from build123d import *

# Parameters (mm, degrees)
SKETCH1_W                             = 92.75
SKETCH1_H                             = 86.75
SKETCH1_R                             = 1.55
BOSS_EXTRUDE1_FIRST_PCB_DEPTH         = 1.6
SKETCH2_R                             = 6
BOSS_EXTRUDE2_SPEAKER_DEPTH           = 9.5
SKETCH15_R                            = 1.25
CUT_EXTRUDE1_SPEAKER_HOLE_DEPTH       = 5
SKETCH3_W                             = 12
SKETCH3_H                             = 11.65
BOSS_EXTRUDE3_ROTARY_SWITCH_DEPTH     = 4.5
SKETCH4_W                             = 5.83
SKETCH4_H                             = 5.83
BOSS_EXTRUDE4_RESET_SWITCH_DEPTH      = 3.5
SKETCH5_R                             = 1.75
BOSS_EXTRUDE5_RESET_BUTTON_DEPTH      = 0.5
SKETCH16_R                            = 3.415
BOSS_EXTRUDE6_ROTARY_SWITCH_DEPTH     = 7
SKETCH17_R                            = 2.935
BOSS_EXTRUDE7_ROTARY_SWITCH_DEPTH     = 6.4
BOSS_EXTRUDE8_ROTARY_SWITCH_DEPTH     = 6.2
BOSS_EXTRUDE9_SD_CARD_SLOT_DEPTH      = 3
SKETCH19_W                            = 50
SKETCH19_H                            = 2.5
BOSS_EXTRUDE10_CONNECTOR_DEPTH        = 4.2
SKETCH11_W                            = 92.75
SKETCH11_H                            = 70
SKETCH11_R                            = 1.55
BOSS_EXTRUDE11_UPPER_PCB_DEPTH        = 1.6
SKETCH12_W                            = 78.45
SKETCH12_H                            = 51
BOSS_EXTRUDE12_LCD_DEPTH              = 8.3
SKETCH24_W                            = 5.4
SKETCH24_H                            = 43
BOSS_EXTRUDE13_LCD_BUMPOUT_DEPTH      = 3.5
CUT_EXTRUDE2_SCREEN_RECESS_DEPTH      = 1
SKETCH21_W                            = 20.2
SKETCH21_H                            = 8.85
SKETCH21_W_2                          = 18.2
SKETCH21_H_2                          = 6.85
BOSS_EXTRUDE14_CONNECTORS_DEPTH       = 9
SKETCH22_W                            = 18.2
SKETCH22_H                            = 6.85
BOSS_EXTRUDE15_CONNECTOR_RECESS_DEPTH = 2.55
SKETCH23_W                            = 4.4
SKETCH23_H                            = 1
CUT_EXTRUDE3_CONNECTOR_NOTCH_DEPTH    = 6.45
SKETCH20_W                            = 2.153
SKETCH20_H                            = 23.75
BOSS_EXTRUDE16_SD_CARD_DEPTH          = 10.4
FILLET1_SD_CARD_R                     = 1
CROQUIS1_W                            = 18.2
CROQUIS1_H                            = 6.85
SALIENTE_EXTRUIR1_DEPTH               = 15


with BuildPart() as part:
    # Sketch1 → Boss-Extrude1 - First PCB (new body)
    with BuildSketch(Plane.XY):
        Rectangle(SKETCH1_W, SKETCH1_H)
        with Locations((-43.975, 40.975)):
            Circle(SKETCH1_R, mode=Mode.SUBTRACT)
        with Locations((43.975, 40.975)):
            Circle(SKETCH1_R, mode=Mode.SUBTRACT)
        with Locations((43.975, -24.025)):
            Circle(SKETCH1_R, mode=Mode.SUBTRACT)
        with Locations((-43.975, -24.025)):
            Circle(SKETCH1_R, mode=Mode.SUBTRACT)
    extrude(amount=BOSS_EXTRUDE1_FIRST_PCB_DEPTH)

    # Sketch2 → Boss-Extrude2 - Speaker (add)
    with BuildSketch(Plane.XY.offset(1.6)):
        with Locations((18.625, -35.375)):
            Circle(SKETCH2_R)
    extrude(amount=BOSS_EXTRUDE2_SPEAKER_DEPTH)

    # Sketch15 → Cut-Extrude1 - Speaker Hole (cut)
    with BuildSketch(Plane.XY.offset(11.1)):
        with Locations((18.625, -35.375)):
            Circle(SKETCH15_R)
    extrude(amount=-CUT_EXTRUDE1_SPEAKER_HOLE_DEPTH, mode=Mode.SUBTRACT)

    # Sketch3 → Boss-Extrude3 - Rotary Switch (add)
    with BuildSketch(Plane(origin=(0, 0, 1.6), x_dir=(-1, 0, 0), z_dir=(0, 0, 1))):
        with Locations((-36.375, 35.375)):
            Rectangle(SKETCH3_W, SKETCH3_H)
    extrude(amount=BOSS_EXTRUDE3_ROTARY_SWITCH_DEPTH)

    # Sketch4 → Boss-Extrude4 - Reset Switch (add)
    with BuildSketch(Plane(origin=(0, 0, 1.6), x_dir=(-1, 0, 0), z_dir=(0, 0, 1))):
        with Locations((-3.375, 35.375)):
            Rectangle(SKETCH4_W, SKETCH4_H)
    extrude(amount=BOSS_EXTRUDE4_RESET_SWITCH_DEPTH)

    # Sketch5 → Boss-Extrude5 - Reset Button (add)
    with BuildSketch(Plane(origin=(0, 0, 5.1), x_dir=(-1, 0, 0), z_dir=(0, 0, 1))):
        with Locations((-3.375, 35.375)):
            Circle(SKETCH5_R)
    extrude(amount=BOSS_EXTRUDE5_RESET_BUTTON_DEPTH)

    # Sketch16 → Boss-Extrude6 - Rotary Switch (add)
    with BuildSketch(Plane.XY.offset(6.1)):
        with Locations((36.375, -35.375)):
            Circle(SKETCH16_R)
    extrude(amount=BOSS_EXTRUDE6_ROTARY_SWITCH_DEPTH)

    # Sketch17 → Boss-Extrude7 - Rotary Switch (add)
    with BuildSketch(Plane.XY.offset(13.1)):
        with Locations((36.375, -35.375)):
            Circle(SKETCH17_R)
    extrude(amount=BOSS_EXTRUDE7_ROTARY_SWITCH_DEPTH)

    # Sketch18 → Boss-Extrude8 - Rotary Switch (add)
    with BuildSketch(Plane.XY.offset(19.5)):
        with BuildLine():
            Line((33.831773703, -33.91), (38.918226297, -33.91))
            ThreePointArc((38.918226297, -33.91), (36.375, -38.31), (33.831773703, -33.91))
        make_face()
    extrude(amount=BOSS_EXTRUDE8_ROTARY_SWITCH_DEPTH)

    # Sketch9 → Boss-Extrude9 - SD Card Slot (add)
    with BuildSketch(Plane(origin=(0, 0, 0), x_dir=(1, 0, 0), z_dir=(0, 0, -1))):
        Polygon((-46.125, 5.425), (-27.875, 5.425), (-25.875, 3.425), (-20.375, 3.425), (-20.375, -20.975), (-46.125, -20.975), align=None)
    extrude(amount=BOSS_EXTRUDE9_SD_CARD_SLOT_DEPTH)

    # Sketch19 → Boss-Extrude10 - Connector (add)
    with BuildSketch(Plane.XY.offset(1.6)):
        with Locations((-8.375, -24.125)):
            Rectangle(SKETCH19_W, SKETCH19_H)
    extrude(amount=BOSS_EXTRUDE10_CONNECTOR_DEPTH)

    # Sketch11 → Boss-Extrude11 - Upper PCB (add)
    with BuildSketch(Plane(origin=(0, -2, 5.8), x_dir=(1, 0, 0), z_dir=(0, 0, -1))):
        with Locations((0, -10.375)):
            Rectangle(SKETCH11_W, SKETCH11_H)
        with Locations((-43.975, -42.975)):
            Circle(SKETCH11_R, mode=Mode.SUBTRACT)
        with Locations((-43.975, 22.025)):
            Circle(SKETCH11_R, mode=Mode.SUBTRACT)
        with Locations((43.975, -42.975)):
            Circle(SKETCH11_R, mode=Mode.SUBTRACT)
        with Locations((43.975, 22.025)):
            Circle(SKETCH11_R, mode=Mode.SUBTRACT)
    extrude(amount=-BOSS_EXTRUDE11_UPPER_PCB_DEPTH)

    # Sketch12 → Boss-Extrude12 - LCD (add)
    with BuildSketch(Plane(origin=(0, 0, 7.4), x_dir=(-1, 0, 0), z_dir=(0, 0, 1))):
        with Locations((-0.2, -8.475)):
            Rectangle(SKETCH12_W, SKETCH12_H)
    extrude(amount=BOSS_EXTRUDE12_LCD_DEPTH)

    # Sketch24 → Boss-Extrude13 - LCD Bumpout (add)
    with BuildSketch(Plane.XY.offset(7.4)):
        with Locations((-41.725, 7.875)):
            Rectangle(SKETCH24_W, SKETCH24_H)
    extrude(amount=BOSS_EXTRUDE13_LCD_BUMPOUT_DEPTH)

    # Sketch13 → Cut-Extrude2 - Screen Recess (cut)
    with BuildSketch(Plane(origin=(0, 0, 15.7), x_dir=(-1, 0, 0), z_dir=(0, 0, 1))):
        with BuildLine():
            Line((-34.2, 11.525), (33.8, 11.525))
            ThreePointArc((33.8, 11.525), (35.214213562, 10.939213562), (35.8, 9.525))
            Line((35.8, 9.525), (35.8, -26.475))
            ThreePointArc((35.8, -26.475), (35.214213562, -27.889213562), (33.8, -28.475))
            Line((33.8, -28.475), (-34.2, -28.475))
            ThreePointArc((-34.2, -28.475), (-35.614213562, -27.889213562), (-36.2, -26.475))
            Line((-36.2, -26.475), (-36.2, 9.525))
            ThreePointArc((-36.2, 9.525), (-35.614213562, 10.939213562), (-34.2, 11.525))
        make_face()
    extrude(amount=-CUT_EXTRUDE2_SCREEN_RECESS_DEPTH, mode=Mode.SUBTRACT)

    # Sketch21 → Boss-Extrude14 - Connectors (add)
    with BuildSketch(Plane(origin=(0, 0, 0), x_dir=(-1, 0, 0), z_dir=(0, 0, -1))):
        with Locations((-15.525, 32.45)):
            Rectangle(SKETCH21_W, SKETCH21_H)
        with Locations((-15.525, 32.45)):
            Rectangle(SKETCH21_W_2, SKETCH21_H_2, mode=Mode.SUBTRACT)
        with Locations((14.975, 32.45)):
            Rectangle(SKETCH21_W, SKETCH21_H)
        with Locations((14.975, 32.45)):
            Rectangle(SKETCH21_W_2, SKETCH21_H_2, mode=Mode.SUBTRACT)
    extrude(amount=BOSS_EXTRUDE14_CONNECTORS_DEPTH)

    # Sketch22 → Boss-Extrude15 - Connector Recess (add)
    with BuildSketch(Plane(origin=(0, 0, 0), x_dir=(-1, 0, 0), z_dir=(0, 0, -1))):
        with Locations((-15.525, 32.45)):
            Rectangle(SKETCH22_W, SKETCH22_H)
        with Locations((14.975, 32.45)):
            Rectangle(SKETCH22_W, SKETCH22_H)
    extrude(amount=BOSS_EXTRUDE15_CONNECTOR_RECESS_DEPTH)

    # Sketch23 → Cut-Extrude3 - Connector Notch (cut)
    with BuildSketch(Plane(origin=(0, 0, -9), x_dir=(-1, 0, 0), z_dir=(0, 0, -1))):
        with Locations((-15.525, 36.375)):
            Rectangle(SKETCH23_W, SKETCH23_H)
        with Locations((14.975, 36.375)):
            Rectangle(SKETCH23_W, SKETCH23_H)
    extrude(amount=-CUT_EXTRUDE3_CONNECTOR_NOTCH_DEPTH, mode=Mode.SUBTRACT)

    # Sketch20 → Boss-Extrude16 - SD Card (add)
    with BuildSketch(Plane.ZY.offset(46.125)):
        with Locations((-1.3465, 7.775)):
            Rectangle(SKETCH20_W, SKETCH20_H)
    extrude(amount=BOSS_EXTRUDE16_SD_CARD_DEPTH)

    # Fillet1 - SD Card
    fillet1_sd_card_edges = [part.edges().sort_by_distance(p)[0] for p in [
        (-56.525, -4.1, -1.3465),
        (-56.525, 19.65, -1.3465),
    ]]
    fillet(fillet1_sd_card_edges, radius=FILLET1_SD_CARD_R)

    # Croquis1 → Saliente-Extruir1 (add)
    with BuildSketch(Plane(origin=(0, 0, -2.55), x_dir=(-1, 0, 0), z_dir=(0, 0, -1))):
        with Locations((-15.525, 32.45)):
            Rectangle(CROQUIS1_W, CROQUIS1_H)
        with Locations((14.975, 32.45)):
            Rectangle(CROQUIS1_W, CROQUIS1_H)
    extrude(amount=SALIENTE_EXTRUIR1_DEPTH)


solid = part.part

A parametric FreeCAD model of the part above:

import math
import FreeCAD as App
import Part
import Sketcher
from FreeCAD import Vector
Q = App.Units.Quantity


def edges_at(feature, points):
    """Names of the edges that pass closest to the given points."""
    edges = feature.Shape.Edges
    near = lambda p: min(range(len(edges)), key=lambda i: edges[i].distToShape(Part.Vertex(*p))[0])
    return sorted({f"Edge{near(p) + 1}" for p in points})


def add_polygon(sketch, points):
    """Adds a closed chain of lines whose ends are joined by coincident constraints."""
    first, n = sketch.GeometryCount, len(points)
    for a, b in zip(points, points[1:] + points[:1]):
        sketch.addGeometry(Part.LineSegment(App.Vector(*a, 0), App.Vector(*b, 0)), False)
    for i in range(n):
        sketch.addConstraint(Sketcher.Constraint("Coincident", first + i, 2, first + (i + 1) % n, 1))

doc = App.newDocument("Part")
body = doc.addObject("PartDesign::Body", "Body")

# Sketch on XY plane
sketch1 = body.newObject("Sketcher::SketchObject", "Sketch")
sketch1.AttachmentSupport = (doc.getObject("XY_Plane"), [""])
sketch1.MapMode = "FlatFace"
add_polygon(sketch1, [(-46.4, 43.4), (-46.4, -43.4), (46.4, -43.4), (46.4, 43.4)])  # lines 0-3
sketch1.addGeometry(Part.Circle(Vector(-44, -24, 0), Vector(0, 0, 1), 1.6), False)  # 4
sketch1.addGeometry(Part.Circle(Vector(44, -24, 0), Vector(0, 0, 1), 1.6), False)  # 5
sketch1.addGeometry(Part.Circle(Vector(-44, 41, 0), Vector(0, 0, 1), 1.6), False)  # 6
sketch1.addGeometry(Part.Circle(Vector(44, 41, 0), Vector(0, 0, 1), 1.6), False)  # 7
sketch1.addConstraint(Sketcher.Constraint("Vertical", 0))
sketch1.addConstraint(Sketcher.Constraint("Horizontal", 1))
sketch1.addConstraint(Sketcher.Constraint("Vertical", 2))
sketch1.addConstraint(Sketcher.Constraint("Horizontal", 3))
sketch1.addConstraint(Sketcher.Constraint("Equal", 4, 5))
sketch1.addConstraint(Sketcher.Constraint("Equal", 5, 6))
sketch1.addConstraint(Sketcher.Constraint("Equal", 6, 7))
sketch1.addConstraint(Sketcher.Constraint("Symmetric", 0, 2, 2, 2, -1, 1))
sketch1.addConstraint(Sketcher.Constraint("Symmetric", 4, 3, 5, 3, -2))
sketch1.addConstraint(Sketcher.Constraint("Symmetric", 6, 3, 7, 3, -2))
sketch1.addConstraint(Sketcher.Constraint("Vertical", 4, 3, 6, 3))
sketch1.addConstraint(Sketcher.Constraint("Diameter", 4, Q("3.1 mm")))
sketch1.addConstraint(Sketcher.Constraint("DistanceY", 4, 3, 6, 3, Q("65 mm")))
sketch1.addConstraint(Sketcher.Constraint("DistanceX", 1, 1, 1, 2, Q("92.75 mm")))
sketch1.addConstraint(Sketcher.Constraint("DistanceY", 0, 2, 0, 1, Q("86.75 mm")))
sketch1.addConstraint(Sketcher.Constraint("DistanceX", 0, 2, 4, 3, Q("2.4 mm")))
sketch1.addConstraint(Sketcher.Constraint("DistanceY", 7, 3, 2, 2, Q("2.4 mm")))
pad1 = body.newObject("PartDesign::Pad", "Pad")
pad1.Profile = sketch1
pad1.Length = 1.6

# Sketch on XY plane
sketch2 = body.newObject("Sketcher::SketchObject", "Sketch001")
sketch2.AttachmentSupport = (doc.getObject("XY_Plane"), [""])
sketch2.MapMode = "FlatFace"
sketch2.AttachmentOffset = App.Placement(Vector(0, 0, 1.6), App.Rotation())
sketch2.addGeometry(Part.Circle(Vector(19, -35, 0), Vector(0, 0, 1), 6), False)
sketch2.addConstraint(Sketcher.Constraint("Diameter", 0, Q("12 mm")))
sketch2.addConstraint(Sketcher.Constraint("DistanceX", -1, 1, 0, 3, Q("18.625 mm")))
sketch2.addConstraint(Sketcher.Constraint("DistanceY", 0, 3, -1, 1, Q("35.375 mm")))
pad2 = body.newObject("PartDesign::Pad", "Pad001")
pad2.Profile = sketch2
pad2.Length = 9.5

# Sketch on XY plane
sketch3 = body.newObject("Sketcher::SketchObject", "Sketch002")
sketch3.AttachmentSupport = (doc.getObject("XY_Plane"), [""])
sketch3.MapMode = "FlatFace"
sketch3.AttachmentOffset = App.Placement(Vector(0, 0, 11.1), App.Rotation())
sketch3.addGeometry(Part.Circle(Vector(18.6, -35.4, 0), Vector(0, 0, 1), 1.2), False)
sketch3.addConstraint(Sketcher.Constraint("Diameter", 0, Q("2.5 mm")))
sketch3.addConstraint(Sketcher.Constraint("DistanceX", -1, 1, 0, 3, Q("18.625 mm")))
sketch3.addConstraint(Sketcher.Constraint("DistanceY", 0, 3, -1, 1, Q("35.375 mm")))
pocket1 = body.newObject("PartDesign::Pocket", "Pocket")
pocket1.Profile = sketch3
pocket1.Length = 5

# Sketch on XY plane
sketch4 = body.newObject("Sketcher::SketchObject", "Sketch003")
sketch4.AttachmentSupport = (doc.getObject("XY_Plane"), [""])
sketch4.MapMode = "FlatFace"
sketch4.AttachmentOffset = App.Placement(Vector(0, 0, 1.6), App.Rotation())
add_polygon(sketch4, [(42, -41), (42, -30), (30, -30), (30, -41)])  # lines 0-3
sketch4.addConstraint(Sketcher.Constraint("Vertical", 0))
sketch4.addConstraint(Sketcher.Constraint("Horizontal", 1))
sketch4.addConstraint(Sketcher.Constraint("Vertical", 2))
sketch4.addConstraint(Sketcher.Constraint("Horizontal", 3))
sketch4.addConstraint(Sketcher.Constraint("DistanceX", 1, 2, 1, 1, Q("12 mm")))
sketch4.addConstraint(Sketcher.Constraint("DistanceY", 0, 1, 0, 2, Q("11.65 mm")))
sketch4.addConstraint(Sketcher.Constraint("DistanceY", 2, 2, -1, 1, Q("41.2 mm")))
sketch4.addConstraint(Sketcher.Constraint("DistanceX", -1, 1, 0, 2, Q("42.375 mm")))
pad3 = body.newObject("PartDesign::Pad", "Pad002")
pad3.Profile = sketch4
pad3.Length = 4.5

# Sketch on XY plane
sketch5 = body.newObject("Sketcher::SketchObject", "Sketch004")
sketch5.AttachmentSupport = (doc.getObject("XY_Plane"), [""])
sketch5.MapMode = "FlatFace"
sketch5.AttachmentOffset = App.Placement(Vector(0, 0, 1.6), App.Rotation())
add_polygon(sketch5, [(6, -38), (6, -32), (0, -32), (0, -38)])  # lines 0-3
sketch5.addConstraint(Sketcher.Constraint("Vertical", 0))
sketch5.addConstraint(Sketcher.Constraint("Horizontal", 1))
sketch5.addConstraint(Sketcher.Constraint("Vertical", 2))
sketch5.addConstraint(Sketcher.Constraint("Horizontal", 3))
sketch5.addConstraint(Sketcher.Constraint("Equal", 3, 0))
sketch5.addConstraint(Sketcher.Constraint("DistanceX", 1, 2, 1, 1, Q("5.83 mm")))
sketch5.addConstraint(Sketcher.Constraint("DistanceX", -1, 1, 0, 2, Q("6.29 mm")))
sketch5.addConstraint(Sketcher.Constraint("DistanceY", 0, 2, -1, 1, Q("32.46 mm")))
pad4 = body.newObject("PartDesign::Pad", "Pad003")
pad4.Profile = sketch5
pad4.Length = 3.5

# Sketch on XY plane
sketch6 = body.newObject("Sketcher::SketchObject", "Sketch005")
sketch6.AttachmentSupport = (doc.getObject("XY_Plane"), [""])
sketch6.MapMode = "FlatFace"
sketch6.AttachmentOffset = App.Placement(Vector(0, 0, 5.1), App.Rotation())
sketch6.addGeometry(Part.Circle(Vector(3.4, -35.4, 0), Vector(0, 0, 1), 1.8), False)
sketch6.addConstraint(Sketcher.Constraint("Diameter", 0, Q("3.5 mm")))
sketch6.addConstraint(Sketcher.Constraint("DistanceX", -1, 1, 0, 3, Q("3.375 mm")))
sketch6.addConstraint(Sketcher.Constraint("DistanceY", 0, 3, -1, 1, Q("35.375 mm")))
pad5 = body.newObject("PartDesign::Pad", "Pad004")
pad5.Profile = sketch6
pad5.Length = 0.5

# Sketch on XY plane
sketch7 = body.newObject("Sketcher::SketchObject", "Sketch006")
sketch7.AttachmentSupport = (doc.getObject("XY_Plane"), [""])
sketch7.MapMode = "FlatFace"
sketch7.AttachmentOffset = App.Placement(Vector(0, 0, 6.1), App.Rotation())
sketch7.addGeometry(Part.Circle(Vector(36.4, -35.4, 0), Vector(0, 0, 1), 3.4), False)
sketch7.addConstraint(Sketcher.Constraint("Diameter", 0, Q("6.83 mm")))
sketch7.addConstraint(Sketcher.Constraint("DistanceX", -1, 1, 0, 3, Q("36.375 mm")))
sketch7.addConstraint(Sketcher.Constraint("DistanceY", 0, 3, -1, 1, Q("35.375 mm")))
pad6 = body.newObject("PartDesign::Pad", "Pad005")
pad6.Profile = sketch7
pad6.Length = 7

# Sketch on XY plane
sketch8 = body.newObject("Sketcher::SketchObject", "Sketch007")
sketch8.AttachmentSupport = (doc.getObject("XY_Plane"), [""])
sketch8.MapMode = "FlatFace"
sketch8.AttachmentOffset = App.Placement(Vector(0, 0, 13.1), App.Rotation())
sketch8.addGeometry(Part.Circle(Vector(36.4, -35.4, 0), Vector(0, 0, 1), 2.9), False)
sketch8.addConstraint(Sketcher.Constraint("Diameter", 0, Q("5.87 mm")))
sketch8.addConstraint(Sketcher.Constraint("DistanceX", -1, 1, 0, 3, Q("36.375 mm")))
sketch8.addConstraint(Sketcher.Constraint("DistanceY", 0, 3, -1, 1, Q("35.375 mm")))
pad7 = body.newObject("PartDesign::Pad", "Pad006")
pad7.Profile = sketch8
pad7.Length = 6.4

# Sketch on XY plane
sketch9 = body.newObject("Sketcher::SketchObject", "Sketch008")
sketch9.AttachmentSupport = (doc.getObject("XY_Plane"), [""])
sketch9.MapMode = "FlatFace"
sketch9.AttachmentOffset = App.Placement(Vector(0, 0, 19.5), App.Rotation())
sketch9.addGeometry(Part.LineSegment(Vector(38.9, -33.9, 0), Vector(33.8, -33.9, 0)), False)
sketch9.addGeometry(Part.ArcOfCircle(Part.Circle(Vector(36.4, -35.4, 0), Vector(0, 0, 1), 2.9), math.radians(150), math.radians(390)), False)
sketch9.addConstraint(Sketcher.Constraint("Coincident", 0, 1, 1, 2))
sketch9.addConstraint(Sketcher.Constraint("Coincident", 1, 1, 0, 2))
sketch9.addConstraint(Sketcher.Constraint("Horizontal", 0))
sketch9.addConstraint(Sketcher.Constraint("Radius", 1, Q("2.935 mm")))
sketch9.addConstraint(Sketcher.Constraint("DistanceY", 0, 1, -1, 1, Q("33.91 mm")))
sketch9.addConstraint(Sketcher.Constraint("DistanceX", -1, 1, 1, 3, Q("36.375 mm")))
sketch9.addConstraint(Sketcher.Constraint("DistanceY", 1, 3, -1, 1, Q("35.375 mm")))
pad8 = body.newObject("PartDesign::Pad", "Pad007")
pad8.Profile = sketch9
pad8.Length = 6.2

# Sketch on XY plane
sketch10 = body.newObject("Sketcher::SketchObject", "Sketch009")
sketch10.AttachmentSupport = (doc.getObject("XY_Plane"), [""])
sketch10.MapMode = "FlatFace"
add_polygon(sketch10, [(-27.9, -5.4), (-46.1, -5.4), (-46.1, 21), (-20.4, 21), (-20.4, -3.4), (-25.9, -3.4)])  # lines 0-5
sketch10.addConstraint(Sketcher.Constraint("Horizontal", 0))
sketch10.addConstraint(Sketcher.Constraint("Vertical", 1))
sketch10.addConstraint(Sketcher.Constraint("Horizontal", 2))
sketch10.addConstraint(Sketcher.Constraint("Vertical", 3))
sketch10.addConstraint(Sketcher.Constraint("Horizontal", 4))
sketch10.addConstraint(Sketcher.Constraint("Angle", 5, Q("-135 deg")))
sketch10.addConstraint(Sketcher.Constraint("DistanceX", 4, 2, 4, 1, Q("5.5 mm")))
sketch10.addConstraint(Sketcher.Constraint("DistanceY", 1, 1, 1, 2, Q("26.4 mm")))
sketch10.addConstraint(Sketcher.Constraint("DistanceY", 3, 2, 3, 1, Q("24.4 mm")))
sketch10.addConstraint(Sketcher.Constraint("DistanceX", 0, 2, 0, 1, Q("18.25 mm")))
sketch10.addConstraint(Sketcher.Constraint("DistanceX", 0, 2, -1, 1, Q("46.125 mm")))
sketch10.addConstraint(Sketcher.Constraint("DistanceY", 0, 2, -1, 1, Q("5.425 mm")))
pad9 = body.newObject("PartDesign::Pad", "Pad008")
pad9.Profile = sketch10
pad9.Length = 3
pad9.Reversed = True

# Sketch on XY plane
sketch11 = body.newObject("Sketcher::SketchObject", "Sketch010")
sketch11.AttachmentSupport = (doc.getObject("XY_Plane"), [""])
sketch11.MapMode = "FlatFace"
sketch11.AttachmentOffset = App.Placement(Vector(0, 0, 1.6), App.Rotation())
add_polygon(sketch11, [(-33.4, -22.9), (-33.4, -25.4), (16.6, -25.4), (16.6, -22.9)])  # lines 0-3
sketch11.addConstraint(Sketcher.Constraint("Vertical", 0))
sketch11.addConstraint(Sketcher.Constraint("Horizontal", 1))
sketch11.addConstraint(Sketcher.Constraint("Vertical", 2))
sketch11.addConstraint(Sketcher.Constraint("Horizontal", 3))
sketch11.addConstraint(Sketcher.Constraint("DistanceX", 1, 1, 1, 2, Q("50 mm")))
sketch11.addConstraint(Sketcher.Constraint("DistanceY", 0, 2, 0, 1, Q("2.5 mm")))
sketch11.addConstraint(Sketcher.Constraint("DistanceX", 0, 2, -1, 1, Q("33.375 mm")))
sketch11.addConstraint(Sketcher.Constraint("DistanceY", 0, 2, -1, 1, Q("25.375 mm")))
pad10 = body.newObject("PartDesign::Pad", "Pad009")
pad10.Profile = sketch11
pad10.Length = 4.2

# Sketch on XY plane
sketch12 = body.newObject("Sketcher::SketchObject", "Sketch011")
sketch12.AttachmentSupport = (doc.getObject("XY_Plane"), [""])
sketch12.MapMode = "FlatFace"
sketch12.AttachmentOffset = App.Placement(Vector(0, 0, 5.8), App.Rotation())
add_polygon(sketch12, [(-46.4, -26.6), (-46.4, 43.4), (46.4, 43.4), (46.4, -26.6)])  # lines 0-3
sketch12.addGeometry(Part.Circle(Vector(-44, 41, 0), Vector(0, 0, 1), 1.6), False)  # 4
sketch12.addGeometry(Part.Circle(Vector(44, 41, 0), Vector(0, 0, 1), 1.6), False)  # 5
sketch12.addGeometry(Part.Circle(Vector(-44, -24, 0), Vector(0, 0, 1), 1.6), False)  # 6
sketch12.addGeometry(Part.Circle(Vector(44, -24, 0), Vector(0, 0, 1), 1.6), False)  # 7
sketch12.addConstraint(Sketcher.Constraint("Vertical", 0))
sketch12.addConstraint(Sketcher.Constraint("Horizontal", 1))
sketch12.addConstraint(Sketcher.Constraint("Vertical", 2))
sketch12.addConstraint(Sketcher.Constraint("Horizontal", 3))
sketch12.addConstraint(Sketcher.Constraint("Equal", 4, 5))
sketch12.addConstraint(Sketcher.Constraint("Equal", 5, 6))
sketch12.addConstraint(Sketcher.Constraint("Equal", 6, 7))
sketch12.addConstraint(Sketcher.Constraint("Symmetric", 4, 3, 5, 3, -2))
sketch12.addConstraint(Sketcher.Constraint("Symmetric", 6, 3, 7, 3, -2))
sketch12.addConstraint(Sketcher.Constraint("Vertical", 4, 3, 6, 3))
sketch12.addConstraint(Sketcher.Constraint("Diameter", 4, Q("3.1 mm")))
sketch12.addConstraint(Sketcher.Constraint("DistanceY", 0, 1, 0, 2, Q("70 mm")))
sketch12.addConstraint(Sketcher.Constraint("DistanceY", 6, 3, 4, 3, Q("65 mm")))
sketch12.addConstraint(Sketcher.Constraint("DistanceX", 1, 1, 1, 2, Q("92.75 mm")))
sketch12.addConstraint(Sketcher.Constraint("DistanceX", 0, 2, 4, 3, Q("2.4 mm")))
sketch12.addConstraint(Sketcher.Constraint("DistanceY", 4, 3, 0, 2, Q("2.4 mm")))
sketch12.addConstraint(Sketcher.Constraint("DistanceX", 5, 3, 1, 2, Q("2.4 mm")))
sketch12.addConstraint(Sketcher.Constraint("DistanceY", -1, 1, 4, 3, Q("40.975 mm")))
pad11 = body.newObject("PartDesign::Pad", "Pad010")
pad11.Profile = sketch12
pad11.Length = 1.6

# Sketch on XY plane
sketch13 = body.newObject("Sketcher::SketchObject", "Sketch012")
sketch13.AttachmentSupport = (doc.getObject("XY_Plane"), [""])
sketch13.MapMode = "FlatFace"
sketch13.AttachmentOffset = App.Placement(Vector(0, 0, 7.4), App.Rotation())
add_polygon(sketch13, [(39, -17), (39, 34), (-39, 34), (-39, -17)])  # lines 0-3
sketch13.addConstraint(Sketcher.Constraint("Vertical", 0))
sketch13.addConstraint(Sketcher.Constraint("Horizontal", 1))
sketch13.addConstraint(Sketcher.Constraint("Vertical", 2))
sketch13.addConstraint(Sketcher.Constraint("Horizontal", 3))
sketch13.addConstraint(Sketcher.Constraint("DistanceY", 0, 1, 0, 2, Q("51 mm")))
sketch13.addConstraint(Sketcher.Constraint("DistanceX", 1, 2, 1, 1, Q("78.45 mm")))
sketch13.addConstraint(Sketcher.Constraint("DistanceX", -1, 1, 0, 2, Q("39.425 mm")))
sketch13.addConstraint(Sketcher.Constraint("DistanceY", -1, 1, 0, 2, Q("33.975 mm")))
pad12 = body.newObject("PartDesign::Pad", "Pad011")
pad12.Profile = sketch13
pad12.Length = 8.3

# Sketch on XY plane
sketch14 = body.newObject("Sketcher::SketchObject", "Sketch013")
sketch14.AttachmentSupport = (doc.getObject("XY_Plane"), [""])
sketch14.MapMode = "FlatFace"
sketch14.AttachmentOffset = App.Placement(Vector(0, 0, 7.4), App.Rotation())
add_polygon(sketch14, [(-44, 29), (-44, -14), (-39, -14), (-39, 29)])  # lines 0-3
sketch14.addConstraint(Sketcher.Constraint("Vertical", 0))
sketch14.addConstraint(Sketcher.Constraint("Horizontal", 1))
sketch14.addConstraint(Sketcher.Constraint("Vertical", 2))
sketch14.addConstraint(Sketcher.Constraint("Horizontal", 3))
sketch14.addConstraint(Sketcher.Constraint("DistanceY", 0, 2, 0, 1, Q("43 mm")))
sketch14.addConstraint(Sketcher.Constraint("DistanceX", 1, 1, 1, 2, Q("5.4 mm")))
sketch14.addConstraint(Sketcher.Constraint("DistanceX", 0, 2, -1, 1, Q("44.425 mm")))
sketch14.addConstraint(Sketcher.Constraint("DistanceY", 0, 2, -1, 1, Q("13.625 mm")))
pad13 = body.newObject("PartDesign::Pad", "Pad012")
pad13.Profile = sketch14
pad13.Length = 3.5

# Sketch on XY plane
sketch15 = body.newObject("Sketcher::SketchObject", "Sketch014")
sketch15.AttachmentSupport = (doc.getObject("XY_Plane"), [""])
sketch15.MapMode = "FlatFace"
sketch15.AttachmentOffset = App.Placement(Vector(0, 0, 15.7), App.Rotation())
sketch15.addGeometry(Part.LineSegment(Vector(-33.8, -11.5, 0), Vector(34.2, -11.5, 0)), False)
sketch15.addGeometry(Part.ArcOfCircle(Part.Circle(Vector(34.2, -9.5, 0), Vector(0, 0, 1), 2), math.radians(-90), math.radians(0)), False)
sketch15.addGeometry(Part.LineSegment(Vector(36.2, -9.5, 0), Vector(36.2, 26.5, 0)), False)
sketch15.addGeometry(Part.ArcOfCircle(Part.Circle(Vector(34.2, 26.5, 0), Vector(0, 0, 1), 2), math.radians(0), math.radians(90)), False)
sketch15.addGeometry(Part.LineSegment(Vector(34.2, 28.5, 0), Vector(-33.8, 28.5, 0)), False)
sketch15.addGeometry(Part.ArcOfCircle(Part.Circle(Vector(-33.8, 26.5, 0), Vector(0, 0, 1), 2), math.radians(90), math.radians(180)), False)
sketch15.addGeometry(Part.LineSegment(Vector(-35.8, 26.5, 0), Vector(-35.8, -9.5, 0)), False)
sketch15.addGeometry(Part.ArcOfCircle(Part.Circle(Vector(-33.8, -9.5, 0), Vector(0, 0, 1), 2), math.radians(-180), math.radians(-90)), False)
sketch15.addConstraint(Sketcher.Constraint("Tangent", 0, 2, 1, 1))
sketch15.addConstraint(Sketcher.Constraint("Tangent", 1, 2, 2, 1))
sketch15.addConstraint(Sketcher.Constraint("Tangent", 2, 2, 3, 1))
sketch15.addConstraint(Sketcher.Constraint("Tangent", 3, 2, 4, 1))
sketch15.addConstraint(Sketcher.Constraint("Tangent", 4, 2, 5, 1))
sketch15.addConstraint(Sketcher.Constraint("Tangent", 5, 2, 6, 1))
sketch15.addConstraint(Sketcher.Constraint("Tangent", 6, 2, 7, 1))
sketch15.addConstraint(Sketcher.Constraint("Tangent", 7, 2, 0, 1))
sketch15.addConstraint(Sketcher.Constraint("Horizontal", 0))
sketch15.addConstraint(Sketcher.Constraint("Vertical", 2))
sketch15.addConstraint(Sketcher.Constraint("Horizontal", 4))
sketch15.addConstraint(Sketcher.Constraint("Vertical", 6))
sketch15.addConstraint(Sketcher.Constraint("Equal", 1, 3))
sketch15.addConstraint(Sketcher.Constraint("Equal", 3, 5))
sketch15.addConstraint(Sketcher.Constraint("Equal", 5, 7))
sketch15.addConstraint(Sketcher.Constraint("Radius", 1, Q("2 mm")))
sketch15.addConstraint(Sketcher.Constraint("DistanceX", 0, 1, 0, 2, Q("68 mm")))
sketch15.addConstraint(Sketcher.Constraint("DistanceY", 2, 1, 2, 2, Q("36 mm")))
sketch15.addConstraint(Sketcher.Constraint("DistanceX", -1, 1, 1, 3, Q("34.2 mm")))
sketch15.addConstraint(Sketcher.Constraint("DistanceY", 1, 3, -1, 1, Q("9.525 mm")))
pocket2 = body.newObject("PartDesign::Pocket", "Pocket001")
pocket2.Profile = sketch15
pocket2.Length = 1

# Sketch on XY plane
sketch16 = body.newObject("Sketcher::SketchObject", "Sketch015")
sketch16.AttachmentSupport = (doc.getObject("XY_Plane"), [""])
sketch16.MapMode = "FlatFace"
add_polygon(sketch16, [(26, 37), (26, 28), (5, 28), (5, 37)])  # lines 0-3
add_polygon(sketch16, [(6, 29), (25, 29), (25, 36), (6, 36)])  # lines 4-7
add_polygon(sketch16, [(-5, 37), (-5, 28), (-25, 28), (-25, 37)])  # lines 8-11
add_polygon(sketch16, [(-24, 29), (-6, 29), (-6, 36), (-24, 36)])  # lines 12-15
sketch16.addConstraint(Sketcher.Constraint("Vertical", 0))
sketch16.addConstraint(Sketcher.Constraint("Horizontal", 1))
sketch16.addConstraint(Sketcher.Constraint("Vertical", 2))
sketch16.addConstraint(Sketcher.Constraint("Horizontal", 3))
sketch16.addConstraint(Sketcher.Constraint("Horizontal", 4))
sketch16.addConstraint(Sketcher.Constraint("Vertical", 5))
sketch16.addConstraint(Sketcher.Constraint("Horizontal", 6))
sketch16.addConstraint(Sketcher.Constraint("Vertical", 7))
sketch16.addConstraint(Sketcher.Constraint("Vertical", 8))
sketch16.addConstraint(Sketcher.Constraint("Horizontal", 9))
sketch16.addConstraint(Sketcher.Constraint("Vertical", 10))
sketch16.addConstraint(Sketcher.Constraint("Horizontal", 11))
sketch16.addConstraint(Sketcher.Constraint("Horizontal", 12))
sketch16.addConstraint(Sketcher.Constraint("Vertical", 13))
sketch16.addConstraint(Sketcher.Constraint("Horizontal", 14))
sketch16.addConstraint(Sketcher.Constraint("Vertical", 15))
sketch16.addConstraint(Sketcher.Constraint("Horizontal", 1, 2, 8, 2))
sketch16.addConstraint(Sketcher.Constraint("Horizontal", 3, 2, 10, 2))
sketch16.addConstraint(Sketcher.Constraint("Horizontal", 7, 2, 12, 2))
sketch16.addConstraint(Sketcher.Constraint("Horizontal", 6, 2, 13, 2))
sketch16.addConstraint(Sketcher.Constraint("Equal", 3, 9))
sketch16.addConstraint(Sketcher.Constraint("Equal", 6, 12))
sketch16.addConstraint(Sketcher.Constraint("DistanceX", 1, 2, 1, 1, Q("20.2 mm")))
sketch16.addConstraint(Sketcher.Constraint("DistanceX", 4, 1, 4, 2, Q("18.2 mm")))
sketch16.addConstraint(Sketcher.Constraint("DistanceX", 4, 2, 0, 2, Q("1 mm")))
sketch16.addConstraint(Sketcher.Constraint("DistanceY", 0, 2, 4, 2, Q("1 mm")))
sketch16.addConstraint(Sketcher.Constraint("DistanceY", 5, 2, 3, 2, Q("1 mm")))
sketch16.addConstraint(Sketcher.Constraint("DistanceX", 12, 2, 8, 2, Q("1 mm")))
sketch16.addConstraint(Sketcher.Constraint("DistanceY", 0, 2, 0, 1, Q("8.85 mm")))
sketch16.addConstraint(Sketcher.Constraint("DistanceX", 8, 2, 1, 2, Q("10.3 mm")))
sketch16.addConstraint(Sketcher.Constraint("DistanceX", -1, 1, 0, 2, Q("25.625 mm")))
sketch16.addConstraint(Sketcher.Constraint("DistanceY", -1, 1, 0, 2, Q("28.025 mm")))
pad14 = body.newObject("PartDesign::Pad", "Pad013")
pad14.Profile = sketch16
pad14.Length = 9
pad14.Reversed = True

# Sketch on XY plane
sketch17 = body.newObject("Sketcher::SketchObject", "Sketch016")
sketch17.AttachmentSupport = (doc.getObject("XY_Plane"), [""])
sketch17.MapMode = "FlatFace"
add_polygon(sketch17, [(25, 36), (25, 29), (6, 29), (6, 36)])  # lines 0-3
add_polygon(sketch17, [(-6, 36), (-6, 29), (-24, 29), (-24, 36)])  # lines 4-7
sketch17.addConstraint(Sketcher.Constraint("Vertical", 0))
sketch17.addConstraint(Sketcher.Constraint("Horizontal", 1))
sketch17.addConstraint(Sketcher.Constraint("Vertical", 2))
sketch17.addConstraint(Sketcher.Constraint("Horizontal", 3))
sketch17.addConstraint(Sketcher.Constraint("Vertical", 4))
sketch17.addConstraint(Sketcher.Constraint("Horizontal", 5))
sketch17.addConstraint(Sketcher.Constraint("Vertical", 6))
sketch17.addConstraint(Sketcher.Constraint("Horizontal", 7))
sketch17.addConstraint(Sketcher.Constraint("Horizontal", 1, 2, 4, 2))
sketch17.addConstraint(Sketcher.Constraint("Horizontal", 3, 2, 6, 2))
sketch17.addConstraint(Sketcher.Constraint("Equal", 3, 5))
sketch17.addConstraint(Sketcher.Constraint("DistanceX", 1, 2, 1, 1, Q("18.2 mm")))
sketch17.addConstraint(Sketcher.Constraint("DistanceY", 0, 2, 0, 1, Q("6.85 mm")))
sketch17.addConstraint(Sketcher.Constraint("DistanceX", 4, 2, 1, 2, Q("12.3 mm")))
sketch17.addConstraint(Sketcher.Constraint("DistanceX", -1, 1, 0, 2, Q("24.625 mm")))
sketch17.addConstraint(Sketcher.Constraint("DistanceY", -1, 1, 0, 2, Q("29.025 mm")))
pad15 = body.newObject("PartDesign::Pad", "Pad014")
pad15.Profile = sketch17
pad15.Length = 2.55
pad15.Reversed = True

# Sketch on XY plane
sketch18 = body.newObject("Sketcher::SketchObject", "Sketch017")
sketch18.AttachmentSupport = (doc.getObject("XY_Plane"), [""])
sketch18.MapMode = "FlatFace"
sketch18.AttachmentOffset = App.Placement(Vector(0, 0, -9), App.Rotation())
add_polygon(sketch18, [(17.7, 36.9), (17.7, 35.9), (13.3, 35.9), (13.3, 36.9)])  # lines 0-3
add_polygon(sketch18, [(-12.8, 36.9), (-12.8, 35.9), (-17.2, 35.9), (-17.2, 36.9)])  # lines 4-7
sketch18.addConstraint(Sketcher.Constraint("Vertical", 0))
sketch18.addConstraint(Sketcher.Constraint("Horizontal", 1))
sketch18.addConstraint(Sketcher.Constraint("Vertical", 2))
sketch18.addConstraint(Sketcher.Constraint("Horizontal", 3))
sketch18.addConstraint(Sketcher.Constraint("Vertical", 4))
sketch18.addConstraint(Sketcher.Constraint("Horizontal", 5))
sketch18.addConstraint(Sketcher.Constraint("Vertical", 6))
sketch18.addConstraint(Sketcher.Constraint("Horizontal", 7))
sketch18.addConstraint(Sketcher.Constraint("Horizontal", 1, 2, 4, 2))
sketch18.addConstraint(Sketcher.Constraint("Horizontal", 3, 2, 6, 2))
sketch18.addConstraint(Sketcher.Constraint("Equal", 3, 5))
sketch18.addConstraint(Sketcher.Constraint("DistanceY", 0, 2, 0, 1, Q("1 mm")))
sketch18.addConstraint(Sketcher.Constraint("DistanceX", 1, 2, 1, 1, Q("4.4 mm")))
sketch18.addConstraint(Sketcher.Constraint("DistanceX", 4, 2, 1, 2, Q("26.1 mm")))
sketch18.addConstraint(Sketcher.Constraint("DistanceX", -1, 1, 0, 2, Q("17.725 mm")))
sketch18.addConstraint(Sketcher.Constraint("DistanceY", -1, 1, 0, 2, Q("35.875 mm")))
pocket3 = body.newObject("PartDesign::Pocket", "Pocket002")
pocket3.Profile = sketch18
pocket3.Length = 6.45
pocket3.Reversed = True

# Sketch on YZ plane
sketch19 = body.newObject("Sketcher::SketchObject", "Sketch018")
sketch19.AttachmentSupport = (doc.getObject("YZ_Plane"), [""])
sketch19.MapMode = "FlatFace"
sketch19.AttachmentOffset = App.Placement(Vector(0, 0, -46.125), App.Rotation())
add_polygon(sketch19, [(19.6, -2.4), (-4.1, -2.4), (-4.1, -0.3), (19.6, -0.3)])  # lines 0-3
sketch19.addConstraint(Sketcher.Constraint("Horizontal", 0))
sketch19.addConstraint(Sketcher.Constraint("Vertical", 1))
sketch19.addConstraint(Sketcher.Constraint("Horizontal", 2))
sketch19.addConstraint(Sketcher.Constraint("Vertical", 3))
sketch19.addConstraint(Sketcher.Constraint("DistanceX", 0, 2, 0, 1, Q("23.75 mm")))
sketch19.addConstraint(Sketcher.Constraint("DistanceX", 0, 2, -1, 1, Q("4.1 mm")))
sketch19.addConstraint(Sketcher.Constraint("DistanceY", 1, 1, 1, 2, Q("2.153 mm")))
sketch19.addConstraint(Sketcher.Constraint("DistanceY", 1, 2, -1, 1, Q("0.27 mm")))
pad16 = body.newObject("PartDesign::Pad", "Pad015")
pad16.Profile = sketch19
pad16.Length = 10.4
pad16.Reversed = True
doc.recompute()

fillet = body.newObject("PartDesign::Fillet", "Fillet")
fillet.Base = (pad16, edges_at(pad16, [(-56.525, -4.1, -1.347), (-56.525, 19.65, -1.347)]))
fillet.Radius = 1

# Sketch on XY plane
sketch20 = body.newObject("Sketcher::SketchObject", "Sketch019")
sketch20.AttachmentSupport = (doc.getObject("XY_Plane"), [""])
sketch20.MapMode = "FlatFace"
sketch20.AttachmentOffset = App.Placement(Vector(0, 0, -2.55), App.Rotation())
add_polygon(sketch20, [(25, 36), (25, 29), (6, 29), (6, 36)])  # lines 0-3
add_polygon(sketch20, [(-6, 36), (-6, 29), (-24, 29), (-24, 36)])  # lines 4-7
sketch20.addConstraint(Sketcher.Constraint("Vertical", 0))
sketch20.addConstraint(Sketcher.Constraint("Horizontal", 1))
sketch20.addConstraint(Sketcher.Constraint("Vertical", 2))
sketch20.addConstraint(Sketcher.Constraint("Horizontal", 3))
sketch20.addConstraint(Sketcher.Constraint("Vertical", 4))
sketch20.addConstraint(Sketcher.Constraint("Horizontal", 5))
sketch20.addConstraint(Sketcher.Constraint("Vertical", 6))
sketch20.addConstraint(Sketcher.Constraint("Horizontal", 7))
sketch20.addConstraint(Sketcher.Constraint("Horizontal", 1, 2, 4, 2))
sketch20.addConstraint(Sketcher.Constraint("Horizontal", 3, 2, 6, 2))
sketch20.addConstraint(Sketcher.Constraint("Equal", 3, 5))
sketch20.addConstraint(Sketcher.Constraint("DistanceX", 1, 2, 1, 1, Q("18.2 mm")))
sketch20.addConstraint(Sketcher.Constraint("DistanceY", 0, 2, 0, 1, Q("6.85 mm")))
sketch20.addConstraint(Sketcher.Constraint("DistanceX", 4, 2, 1, 2, Q("12.3 mm")))
sketch20.addConstraint(Sketcher.Constraint("DistanceX", -1, 1, 0, 2, Q("24.625 mm")))
sketch20.addConstraint(Sketcher.Constraint("DistanceY", -1, 1, 0, 2, Q("29.025 mm")))
pad17 = body.newObject("PartDesign::Pad", "Pad016")
pad17.Profile = sketch20
pad17.Length = 15
pad17.Reversed = True

doc.recompute()
